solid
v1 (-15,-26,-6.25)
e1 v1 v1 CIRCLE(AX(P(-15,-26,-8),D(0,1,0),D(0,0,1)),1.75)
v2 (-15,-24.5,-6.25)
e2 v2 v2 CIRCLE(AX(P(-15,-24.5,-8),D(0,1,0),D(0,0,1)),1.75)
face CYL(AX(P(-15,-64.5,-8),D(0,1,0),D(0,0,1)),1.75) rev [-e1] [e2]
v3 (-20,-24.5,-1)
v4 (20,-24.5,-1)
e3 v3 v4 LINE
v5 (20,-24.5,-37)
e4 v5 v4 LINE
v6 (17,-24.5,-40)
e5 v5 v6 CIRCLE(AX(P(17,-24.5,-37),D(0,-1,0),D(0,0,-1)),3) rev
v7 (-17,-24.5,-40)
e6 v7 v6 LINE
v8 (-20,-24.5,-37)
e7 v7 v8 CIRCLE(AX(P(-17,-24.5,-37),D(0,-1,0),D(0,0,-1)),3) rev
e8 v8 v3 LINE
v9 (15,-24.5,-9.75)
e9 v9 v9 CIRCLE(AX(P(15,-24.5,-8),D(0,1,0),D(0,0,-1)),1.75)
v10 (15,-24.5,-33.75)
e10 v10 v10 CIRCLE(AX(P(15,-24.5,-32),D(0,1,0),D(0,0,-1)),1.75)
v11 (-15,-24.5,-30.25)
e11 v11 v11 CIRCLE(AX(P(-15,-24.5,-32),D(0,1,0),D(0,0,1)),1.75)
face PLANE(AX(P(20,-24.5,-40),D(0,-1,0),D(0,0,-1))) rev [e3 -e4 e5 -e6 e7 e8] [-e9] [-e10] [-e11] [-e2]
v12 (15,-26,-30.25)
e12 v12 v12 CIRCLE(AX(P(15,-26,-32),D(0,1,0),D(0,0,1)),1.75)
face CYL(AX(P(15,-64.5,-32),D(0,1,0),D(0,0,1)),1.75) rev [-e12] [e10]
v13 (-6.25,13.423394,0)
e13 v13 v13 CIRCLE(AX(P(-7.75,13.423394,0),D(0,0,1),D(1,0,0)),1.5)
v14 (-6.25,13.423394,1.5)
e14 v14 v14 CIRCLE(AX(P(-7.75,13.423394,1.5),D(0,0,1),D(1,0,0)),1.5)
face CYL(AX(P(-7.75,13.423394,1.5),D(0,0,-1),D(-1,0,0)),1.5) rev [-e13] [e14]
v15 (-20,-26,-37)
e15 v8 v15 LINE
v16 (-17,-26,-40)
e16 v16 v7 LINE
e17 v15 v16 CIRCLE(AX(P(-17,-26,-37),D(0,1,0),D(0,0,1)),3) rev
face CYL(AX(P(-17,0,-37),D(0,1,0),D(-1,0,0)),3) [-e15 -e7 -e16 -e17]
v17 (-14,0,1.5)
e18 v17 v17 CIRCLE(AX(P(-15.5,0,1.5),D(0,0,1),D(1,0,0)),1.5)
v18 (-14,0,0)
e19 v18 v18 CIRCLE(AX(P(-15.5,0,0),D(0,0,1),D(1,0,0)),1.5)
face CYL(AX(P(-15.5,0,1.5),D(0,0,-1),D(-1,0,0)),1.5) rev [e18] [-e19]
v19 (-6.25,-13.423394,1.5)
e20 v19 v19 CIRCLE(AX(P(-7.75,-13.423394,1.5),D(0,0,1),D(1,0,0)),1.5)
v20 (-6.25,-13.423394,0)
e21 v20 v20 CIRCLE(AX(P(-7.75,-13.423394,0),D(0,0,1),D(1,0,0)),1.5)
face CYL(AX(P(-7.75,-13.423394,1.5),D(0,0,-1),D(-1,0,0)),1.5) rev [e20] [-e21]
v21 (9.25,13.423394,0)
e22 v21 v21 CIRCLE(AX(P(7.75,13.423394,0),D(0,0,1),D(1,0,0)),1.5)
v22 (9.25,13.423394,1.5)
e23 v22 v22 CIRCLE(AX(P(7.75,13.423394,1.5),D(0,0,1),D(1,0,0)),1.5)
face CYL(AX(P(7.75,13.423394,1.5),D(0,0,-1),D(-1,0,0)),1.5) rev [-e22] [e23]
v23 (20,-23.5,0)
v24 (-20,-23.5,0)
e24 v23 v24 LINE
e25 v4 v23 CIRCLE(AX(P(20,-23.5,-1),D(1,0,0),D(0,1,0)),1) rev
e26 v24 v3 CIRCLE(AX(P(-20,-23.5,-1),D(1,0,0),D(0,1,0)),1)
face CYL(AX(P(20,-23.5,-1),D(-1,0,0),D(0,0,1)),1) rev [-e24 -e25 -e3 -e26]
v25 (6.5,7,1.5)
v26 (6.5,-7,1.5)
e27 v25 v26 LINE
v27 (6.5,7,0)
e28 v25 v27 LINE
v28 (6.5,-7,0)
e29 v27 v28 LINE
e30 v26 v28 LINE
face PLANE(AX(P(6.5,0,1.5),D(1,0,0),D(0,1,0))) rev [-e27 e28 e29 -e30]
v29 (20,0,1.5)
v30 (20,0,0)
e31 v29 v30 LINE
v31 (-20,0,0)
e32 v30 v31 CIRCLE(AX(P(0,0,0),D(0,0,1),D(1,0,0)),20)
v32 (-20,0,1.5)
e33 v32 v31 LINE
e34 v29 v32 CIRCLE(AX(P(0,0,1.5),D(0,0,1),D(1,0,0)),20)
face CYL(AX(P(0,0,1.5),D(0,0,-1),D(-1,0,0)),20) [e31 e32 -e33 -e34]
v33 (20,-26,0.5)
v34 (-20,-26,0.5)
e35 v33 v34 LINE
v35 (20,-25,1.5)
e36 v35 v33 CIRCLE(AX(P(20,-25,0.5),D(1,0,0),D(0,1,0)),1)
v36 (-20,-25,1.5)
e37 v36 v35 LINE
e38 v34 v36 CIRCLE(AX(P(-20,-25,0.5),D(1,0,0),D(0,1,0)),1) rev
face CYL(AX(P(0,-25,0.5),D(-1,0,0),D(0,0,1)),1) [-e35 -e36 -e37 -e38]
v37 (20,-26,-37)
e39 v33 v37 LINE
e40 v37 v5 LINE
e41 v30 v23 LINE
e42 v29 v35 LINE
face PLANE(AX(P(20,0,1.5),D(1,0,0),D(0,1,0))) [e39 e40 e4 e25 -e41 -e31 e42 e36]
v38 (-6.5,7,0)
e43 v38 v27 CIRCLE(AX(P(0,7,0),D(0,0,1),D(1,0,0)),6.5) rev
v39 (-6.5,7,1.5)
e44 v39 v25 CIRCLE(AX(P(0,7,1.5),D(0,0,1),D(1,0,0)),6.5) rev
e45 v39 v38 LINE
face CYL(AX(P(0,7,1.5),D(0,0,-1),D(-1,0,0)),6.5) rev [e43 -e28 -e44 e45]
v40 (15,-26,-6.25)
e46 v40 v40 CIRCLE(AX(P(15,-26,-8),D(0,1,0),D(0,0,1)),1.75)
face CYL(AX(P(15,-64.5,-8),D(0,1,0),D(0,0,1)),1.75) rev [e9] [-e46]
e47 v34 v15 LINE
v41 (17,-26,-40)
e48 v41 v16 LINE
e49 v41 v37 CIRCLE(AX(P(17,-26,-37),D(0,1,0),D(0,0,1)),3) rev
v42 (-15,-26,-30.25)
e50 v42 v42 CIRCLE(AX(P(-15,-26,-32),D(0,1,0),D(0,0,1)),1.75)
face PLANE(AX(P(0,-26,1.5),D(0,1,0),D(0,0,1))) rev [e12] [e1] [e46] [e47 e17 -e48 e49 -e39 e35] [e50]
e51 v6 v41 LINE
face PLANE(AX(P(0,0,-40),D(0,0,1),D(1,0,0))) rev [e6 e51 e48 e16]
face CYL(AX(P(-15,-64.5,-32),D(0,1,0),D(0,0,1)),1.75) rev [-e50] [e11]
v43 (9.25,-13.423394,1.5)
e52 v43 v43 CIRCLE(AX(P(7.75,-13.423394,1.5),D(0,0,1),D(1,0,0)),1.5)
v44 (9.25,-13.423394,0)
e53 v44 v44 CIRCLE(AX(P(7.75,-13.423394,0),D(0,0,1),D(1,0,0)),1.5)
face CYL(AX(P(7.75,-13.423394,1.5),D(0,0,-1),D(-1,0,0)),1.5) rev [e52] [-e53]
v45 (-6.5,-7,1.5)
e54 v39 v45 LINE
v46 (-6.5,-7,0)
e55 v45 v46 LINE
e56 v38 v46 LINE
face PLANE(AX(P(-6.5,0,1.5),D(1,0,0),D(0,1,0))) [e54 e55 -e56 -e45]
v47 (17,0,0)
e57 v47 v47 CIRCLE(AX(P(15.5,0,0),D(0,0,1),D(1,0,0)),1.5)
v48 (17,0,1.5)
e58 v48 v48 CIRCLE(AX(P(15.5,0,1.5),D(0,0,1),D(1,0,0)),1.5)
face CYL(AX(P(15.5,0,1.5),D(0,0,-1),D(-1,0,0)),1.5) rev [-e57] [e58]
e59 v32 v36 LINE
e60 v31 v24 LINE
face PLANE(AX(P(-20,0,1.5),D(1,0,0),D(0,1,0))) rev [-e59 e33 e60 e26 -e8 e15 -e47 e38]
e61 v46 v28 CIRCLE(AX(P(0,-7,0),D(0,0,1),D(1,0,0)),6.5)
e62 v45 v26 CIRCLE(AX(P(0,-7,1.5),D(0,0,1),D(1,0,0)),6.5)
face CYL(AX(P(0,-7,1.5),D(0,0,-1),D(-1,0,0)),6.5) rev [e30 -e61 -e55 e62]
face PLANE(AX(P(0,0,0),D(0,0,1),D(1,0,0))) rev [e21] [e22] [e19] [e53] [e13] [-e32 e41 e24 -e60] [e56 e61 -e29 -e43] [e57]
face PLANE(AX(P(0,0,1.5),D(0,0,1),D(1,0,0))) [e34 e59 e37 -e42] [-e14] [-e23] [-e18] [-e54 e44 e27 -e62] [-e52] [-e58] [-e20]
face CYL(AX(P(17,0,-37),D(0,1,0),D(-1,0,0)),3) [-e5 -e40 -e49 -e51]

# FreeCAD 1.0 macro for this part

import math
import FreeCAD as App
import Part
import Sketcher

V = App.Vector


def edges_at(feature, points):
    """Names of the edges that pass closest to the given points."""
    edges = feature.Shape.Edges
    near = lambda p: min(range(len(edges)), key=lambda i: edges[i].distToShape(Part.Vertex(*p))[0])
    return sorted({f"Edge{near(p) + 1}" for p in points})


def add_polygon(sketch, points):
    """Adds a closed chain of lines whose ends are joined by coincident constraints."""
    first, n = sketch.GeometryCount, len(points)
    for a, b in zip(points, points[1:] + points[:1]):
        sketch.addGeometry(Part.LineSegment(App.Vector(*a, 0), App.Vector(*b, 0)), False)
    for i in range(n):
        sketch.addConstraint(Sketcher.Constraint("Coincident", first + i, 2, first + (i + 1) % n, 1))

doc = App.newDocument("Part")
body = doc.addObject("PartDesign::Body", "Body")

# Sketch on XY plane
sketch1 = body.newObject("Sketcher::SketchObject", "Sketch")
sketch1.AttachmentSupport = (doc.getObject("XY_Plane"), [""])
sketch1.MapMode = "FlatFace"
sketch1.addGeometry([
    Part.LineSegment(V(-20, 0, 0), V(-20, -26, 0)),  # 0
    Part.LineSegment(V(-20, -26, 0), V(20, -26, 0)),  # 1
    Part.LineSegment(V(20, -26, 0), V(20, 0, 0)),  # 2
    Part.ArcOfCircle(Part.Circle(V(0, 0, 0), V(0, 0, 1), 20), math.radians(0), math.radians(180)),  # 3
    Part.Circle(V(-7.8, -13.4, 0), V(0, 0, 1), 1.5),  # 4
    Part.Circle(V(7.8, -13.4, 0), V(0, 0, 1), 1.5),  # 5
    Part.Circle(V(-15.5, 0, 0), V(0, 0, 1), 1.5),  # 6
    Part.Circle(V(-7.8, 13.4, 0), V(0, 0, 1), 1.5),  # 7
    Part.LineSegment(V(-6.5, -7, 0), V(-6.5, 7, 0)),  # 8
    Part.ArcOfCircle(Part.Circle(V(0, 7, 0), V(0, 0, 1), 6.5), math.radians(0), math.radians(180)),  # 9
    Part.LineSegment(V(6.5, 7, 0), V(6.5, -7, 0)),  # 10
    Part.ArcOfCircle(Part.Circle(V(0, -7, 0), V(0, 0, 1), 6.5), math.radians(180), math.radians(360)),  # 11
    Part.Circle(V(15.5, 0, 0), V(0, 0, 1), 1.5),  # 12
    Part.Circle(V(7.8, 13.4, 0), V(0, 0, 1), 1.5),  # 13
], False)
sketch1.addConstraint([
    Sketcher.Constraint("Coincident", 0, 2, 1, 1),
    Sketcher.Constraint("Coincident", 1, 2, 2, 1),
    Sketcher.Constraint("Tangent", 2, 2, 3, 1),
    Sketcher.Constraint("Tangent", 3, 2, 0, 1),
    Sketcher.Constraint("Tangent", 8, 2, 9, 2),
    Sketcher.Constraint("Tangent", 9, 1, 10, 1),
    Sketcher.Constraint("Tangent", 10, 2, 11, 2),
    Sketcher.Constraint("Tangent", 11, 1, 8, 1),
    Sketcher.Constraint("Vertical", 0),
    Sketcher.Constraint("Horizontal", 1),
    Sketcher.Constraint("Vertical", 2),
    Sketcher.Constraint("Vertical", 8),
    Sketcher.Constraint("Vertical", 10),
    Sketcher.Constraint("Coincident", 3, 3, -1, 1),
    Sketcher.Constraint("Equal", 4, 5),
    Sketcher.Constraint("Equal", 5, 6),
    Sketcher.Constraint("Equal", 6, 7),
    Sketcher.Constraint("Equal", 7, 12),
    Sketcher.Constraint("Equal", 12, 13),
    Sketcher.Constraint("Symmetric", 5, 3, 7, 3, -1, 1),
    Sketcher.Constraint("Symmetric", 9, 3, 11, 3, -1, 1),
    Sketcher.Constraint("Symmetric", 6, 3, 12, 3, -1, 1),
    Sketcher.Constraint("Symmetric", 4, 3, 13, 3, -1, 1),
    Sketcher.Constraint("Symmetric", 4, 3, 5, 3, -2),
    Sketcher.Constraint("PointOnObject", 6, 3, -1),
    Sketcher.Constraint("Diameter", 4, 3.0),
    Sketcher.Constraint("Radius", 3, 20.0),
    Sketcher.Constraint("Radius", 9, 6.5),
    Sketcher.Constraint("DistanceY", 0, 2, 0, 1, 26.0),
    Sketcher.Constraint("DistanceY", 8, 1, 8, 2, 14.0),
    Sketcher.Constraint("DistanceX", 6, 3, 8, 2, 9.0),
    Sketcher.Constraint("DistanceX", 4, 3, 5, 3, 15.5),
    Sketcher.Constraint("DistanceY", 4, 3, -1, 1, 13.423394),
])
pad1 = body.newObject("PartDesign::Pad", "Pad")
pad1.Profile = sketch1
pad1.Length = 1.5

# Sketch on XY plane
sketch2 = body.newObject("Sketcher::SketchObject", "Sketch001")
sketch2.AttachmentSupport = (doc.getObject("XY_Plane"), [""])
sketch2.MapMode = "FlatFace"
add_polygon(sketch2, [(20, -24.5), (20, -26), (-20, -26), (-20, -24.5)])  # lines 0-3
sketch2.addConstraint([
    Sketcher.Constraint("Vertical", 0),
    Sketcher.Constraint("Horizontal", 1),
    Sketcher.Constraint("Vertical", 2),
    Sketcher.Constraint("Horizontal", 3),
    Sketcher.Constraint("DistanceX", 1, 2, 1, 1, 40.0),
    Sketcher.Constraint("DistanceY", 0, 2, 0, 1, 1.5),
    Sketcher.Constraint("DistanceX", -1, 1, 0, 2, 20.0),
    Sketcher.Constraint("DistanceY", 0, 2, -1, 1, 26.0),
])
pad2 = body.newObject("PartDesign::Pad", "Pad001")
pad2.Profile = sketch2
pad2.Length = 40
pad2.Reversed = True

# Sketch on XZ plane
sketch3 = body.newObject("Sketcher::SketchObject", "Sketch002")
sketch3.AttachmentSupport = (doc.getObject("XZ_Plane"), [""])
sketch3.MapMode = "FlatFace"
sketch3.AttachmentOffset = App.Placement(V(0, 0, 24.5), App.Rotation())
sketch3.addGeometry([
    Part.Circle(V(-15, -32, 0), V(0, 0, 1), 1.8),
    Part.Circle(V(-15, -8, 0), V(0, 0, 1), 1.8),
    Part.Circle(V(15, -8, 0), V(0, 0, 1), 1.8),
    Part.Circle(V(15, -32, 0), V(0, 0, 1), 1.8),
], False)
sketch3.addConstraint([
    Sketcher.Constraint("Equal", 0, 1),
    Sketcher.Constraint("Equal", 1, 2),
    Sketcher.Constraint("Equal", 2, 3),
    Sketcher.Constraint("Symmetric", 1, 3, 2, 3, -2),
    Sketcher.Constraint("Symmetric", 0, 3, 3, 3, -2),
    Sketcher.Constraint("Vertical", 0, 3, 1, 3),
    Sketcher.Constraint("Diameter", 0, 3.5),
    Sketcher.Constraint("DistanceX", 0, 3, -1, 1, 15.0),
    Sketcher.Constraint("DistanceY", 0, 3, -1, 1, 32.0),
    Sketcher.Constraint("DistanceY", 1, 3, -1, 1, 8.0),
])
pocket1 = body.newObject("PartDesign::Pocket", "Pocket")
pocket1.Profile = sketch3
pocket1.Length = 40
pocket1.Reversed = True
doc.recompute()

fillet = body.newObject("PartDesign::Fillet", "Fillet")
fillet.Base = (pocket1, edges_at(pocket1, [(20, -25.25, -40), (-20, -25.25, -40)]))
fillet.Radius = 3
doc.recompute()

fillet2 = body.newObject("PartDesign::Fillet", "Fillet001")
fillet2.Base = (fillet, edges_at(fillet, [(0, -24.5, 0), (0, -26, 1.5)]))
fillet2.Radius = 1

doc.recompute()
